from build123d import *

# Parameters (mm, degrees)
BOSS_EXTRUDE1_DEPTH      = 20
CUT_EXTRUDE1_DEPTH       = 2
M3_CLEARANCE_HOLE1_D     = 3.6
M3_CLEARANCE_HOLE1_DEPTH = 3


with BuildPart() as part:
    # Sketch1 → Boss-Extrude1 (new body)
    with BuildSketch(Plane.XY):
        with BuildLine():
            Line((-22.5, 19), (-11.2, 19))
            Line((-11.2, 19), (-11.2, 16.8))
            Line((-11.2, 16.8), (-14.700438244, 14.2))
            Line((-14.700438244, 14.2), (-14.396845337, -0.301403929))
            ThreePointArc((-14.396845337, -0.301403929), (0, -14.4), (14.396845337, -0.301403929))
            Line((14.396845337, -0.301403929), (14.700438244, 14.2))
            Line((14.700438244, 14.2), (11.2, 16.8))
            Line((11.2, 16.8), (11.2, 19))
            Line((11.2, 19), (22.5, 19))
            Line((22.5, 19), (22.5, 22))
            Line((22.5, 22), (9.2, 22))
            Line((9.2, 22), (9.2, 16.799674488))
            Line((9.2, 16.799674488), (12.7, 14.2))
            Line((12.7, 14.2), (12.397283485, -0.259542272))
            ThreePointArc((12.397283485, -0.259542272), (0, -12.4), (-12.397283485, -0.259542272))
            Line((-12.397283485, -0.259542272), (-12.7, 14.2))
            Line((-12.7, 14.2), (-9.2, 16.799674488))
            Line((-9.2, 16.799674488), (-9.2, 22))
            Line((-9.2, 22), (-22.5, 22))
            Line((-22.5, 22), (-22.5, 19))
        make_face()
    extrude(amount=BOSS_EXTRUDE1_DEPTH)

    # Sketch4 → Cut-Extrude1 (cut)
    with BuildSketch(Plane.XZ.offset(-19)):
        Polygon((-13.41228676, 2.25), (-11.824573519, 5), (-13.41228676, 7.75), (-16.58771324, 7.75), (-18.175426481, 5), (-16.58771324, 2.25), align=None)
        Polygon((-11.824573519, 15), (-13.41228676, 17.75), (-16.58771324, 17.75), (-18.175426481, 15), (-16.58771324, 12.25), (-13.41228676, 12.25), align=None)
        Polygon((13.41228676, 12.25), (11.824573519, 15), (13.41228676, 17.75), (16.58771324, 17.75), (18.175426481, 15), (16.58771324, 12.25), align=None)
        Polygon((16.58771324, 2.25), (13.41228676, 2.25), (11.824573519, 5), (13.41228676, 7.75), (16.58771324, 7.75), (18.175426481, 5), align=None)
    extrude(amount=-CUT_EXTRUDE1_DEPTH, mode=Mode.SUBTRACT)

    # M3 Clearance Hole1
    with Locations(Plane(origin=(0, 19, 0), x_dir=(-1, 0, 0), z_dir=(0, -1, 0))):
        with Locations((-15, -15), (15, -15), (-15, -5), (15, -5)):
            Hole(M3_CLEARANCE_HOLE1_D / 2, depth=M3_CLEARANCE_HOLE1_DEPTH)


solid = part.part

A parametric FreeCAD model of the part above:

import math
import FreeCAD as App
import Part
import Sketcher
from FreeCAD import Vector
Q = App.Units.Quantity

doc = App.newDocument("Part")
body = doc.addObject("PartDesign::Body", "Body")

# Sketch on XY plane
sketch1 = doc.addObject("Sketcher::SketchObject", "Sketch")
body.addObject(sketch1)
sketch1.AttachmentSupport = (doc.XY_Plane, [""])
sketch1.MapMode = "FlatFace"
sketch1.addGeometry([
    Part.LineSegment(Vector(-22.5, 19, 0), Vector(-11.2, 19, 0)),  # 0
    Part.LineSegment(Vector(-11.2, 19, 0), Vector(-11.2, 16.8, 0)),  # 1
    Part.LineSegment(Vector(-11.2, 16.8, 0), Vector(-14.700438, 14.2, 0)),  # 2
    Part.LineSegment(Vector(-14.700438, 14.2, 0), Vector(-14.396845, -0.301404, 0)),  # 3
    Part.ArcOfCircle(Part.Circle(Vector(0, 0, 0), Vector(0, 0, 1), 14.4), math.radians(-178.800664), math.radians(-1.199336)),  # 4
    Part.LineSegment(Vector(14.396845, -0.301404, 0), Vector(14.700438, 14.2, 0)),  # 5
    Part.LineSegment(Vector(14.700438, 14.2, 0), Vector(11.2, 16.8, 0)),  # 6
    Part.LineSegment(Vector(11.2, 16.8, 0), Vector(11.2, 19, 0)),  # 7
    Part.LineSegment(Vector(11.2, 19, 0), Vector(22.5, 19, 0)),  # 8
    Part.LineSegment(Vector(22.5, 19, 0), Vector(22.5, 22, 0)),  # 9
    Part.LineSegment(Vector(22.5, 22, 0), Vector(9.2, 22, 0)),  # 10
    Part.LineSegment(Vector(9.2, 22, 0), Vector(9.2, 16.799674, 0)),  # 11
    Part.LineSegment(Vector(9.2, 16.799674, 0), Vector(12.7, 14.2, 0)),  # 12
    Part.LineSegment(Vector(12.7, 14.2, 0), Vector(12.397283, -0.259542, 0)),  # 13
    Part.ArcOfCircle(Part.Circle(Vector(0, 0, 0), Vector(0, 0, 1), 12.4), math.radians(-178.800664), math.radians(-1.199336)),  # 14
    Part.LineSegment(Vector(-12.397283, -0.259542, 0), Vector(-12.7, 14.2, 0)),  # 15
    Part.LineSegment(Vector(-12.7, 14.2, 0), Vector(-9.2, 16.799674, 0)),  # 16
    Part.LineSegment(Vector(-9.2, 16.799674, 0), Vector(-9.2, 22, 0)),  # 17
    Part.LineSegment(Vector(-9.2, 22, 0), Vector(-22.5, 22, 0)),  # 18
    Part.LineSegment(Vector(-22.5, 22, 0), Vector(-22.5, 19, 0)),  # 19
], False)
sketch1.addConstraint([
    Sketcher.Constraint("Coincident", 0, 2, 1, 1),
    Sketcher.Constraint("Coincident", 1, 2, 2, 1),
    Sketcher.Constraint("Coincident", 2, 2, 3, 1),
    Sketcher.Constraint("Tangent", 3, 2, 4, 1),
    Sketcher.Constraint("Tangent", 4, 2, 5, 1),
    Sketcher.Constraint("Coincident", 5, 2, 6, 1),
    Sketcher.Constraint("Coincident", 6, 2, 7, 1),
    Sketcher.Constraint("Coincident", 7, 2, 8, 1),
    Sketcher.Constraint("Coincident", 8, 2, 9, 1),
    Sketcher.Constraint("Coincident", 9, 2, 10, 1),
    Sketcher.Constraint("Coincident", 10, 2, 11, 1),
    Sketcher.Constraint("Coincident", 11, 2, 12, 1),
    Sketcher.Constraint("Coincident", 12, 2, 13, 1),
    Sketcher.Constraint("Tangent", 13, 2, 14, 2),
    Sketcher.Constraint("Tangent", 14, 1, 15, 1),
    Sketcher.Constraint("Coincident", 15, 2, 16, 1),
    Sketcher.Constraint("Coincident", 16, 2, 17, 1),
    Sketcher.Constraint("Coincident", 17, 2, 18, 1),
    Sketcher.Constraint("Coincident", 18, 2, 19, 1),
    Sketcher.Constraint("Coincident", 19, 2, 0, 1),
    Sketcher.Constraint("Horizontal", 0),
    Sketcher.Constraint("Vertical", 1),
    Sketcher.Constraint("Vertical", 7),
    Sketcher.Constraint("Horizontal", 8),
    Sketcher.Constraint("Vertical", 9),
    Sketcher.Constraint("Horizontal", 10),
    Sketcher.Constraint("Vertical", 11),
    Sketcher.Constraint("Vertical", 17),
    Sketcher.Constraint("Horizontal", 18),
    Sketcher.Constraint("Vertical", 19),
    Sketcher.Constraint("Coincident", 4, 3, -1, 1),
    Sketcher.Constraint("Coincident", 14, 3, -1, 1),
    Sketcher.Constraint("Symmetric", 2, 2, 5, 2, -2),
    Sketcher.Constraint("Symmetric", 1, 2, 6, 2, -2),
    Sketcher.Constraint("Symmetric", 12, 2, 15, 2, -2),
    Sketcher.Constraint("Symmetric", 11, 2, 16, 2, -2),
    Sketcher.Constraint("Symmetric", 9, 2, 18, 2, -2),
    Sketcher.Constraint("Parallel", 6, 12),
    Sketcher.Constraint("Parallel", 5, 13),
    Sketcher.Constraint("Horizontal", 0, 2, 7, 2),
    Sketcher.Constraint("Horizontal", 5, 2, 12, 2),
    Sketcher.Constraint("Radius", 4, 14.4),
    Sketcher.Constraint("Radius", 14, 12.4),
    Sketcher.Constraint("DistanceY", 9, 1, 9, 2, 3.0),
    Sketcher.Constraint("DistanceX", 0, 1, 0, 2, 11.3),
    Sketcher.Constraint("DistanceX", 10, 2, 10, 1, 13.3),
    Sketcher.Constraint("DistanceY", 1, 2, 1, 1, 2.2),
    Sketcher.Constraint("DistanceY", -1, 1, 0, 2, 19.0),
    Sketcher.Constraint("DistanceX", 0, 2, -1, 1, 11.2),
    Sketcher.Constraint("DistanceY", -1, 1, 2, 2, 14.2),
    Sketcher.Constraint("DistanceX", -1, 1, 12, 2, 12.7),
])
pad1 = doc.addObject("PartDesign::Pad", "Pad")
body.addObject(pad1)
pad1.Profile = sketch1
pad1.Length = 20

# Sketch on XZ plane
sketch2 = doc.addObject("Sketcher::SketchObject", "Sketch001")
body.addObject(sketch2)
sketch2.AttachmentSupport = (doc.XZ_Plane, [""])
sketch2.MapMode = "FlatFace"
sketch2.AttachmentOffset = App.Placement(Vector(0, 0, -19), App.Rotation())
sketch2.addGeometry([
    Part.LineSegment(Vector(-13.412287, 2.25, 0), Vector(-11.824574, 5, 0)),  # 0
    Part.LineSegment(Vector(-11.824574, 5, 0), Vector(-13.412287, 7.75, 0)),  # 1
    Part.LineSegment(Vector(-13.412287, 7.75, 0), Vector(-16.587713, 7.75, 0)),  # 2
    Part.LineSegment(Vector(-16.587713, 7.75, 0), Vector(-18.175426, 5, 0)),  # 3
    Part.LineSegment(Vector(-18.175426, 5, 0), Vector(-16.587713, 2.25, 0)),  # 4
    Part.LineSegment(Vector(-16.587713, 2.25, 0), Vector(-13.412287, 2.25, 0)),  # 5
    Part.LineSegment(Vector(-11.824574, 15, 0), Vector(-13.412287, 17.75, 0)),  # 6
    Part.LineSegment(Vector(-13.412287, 17.75, 0), Vector(-16.587713, 17.75, 0)),  # 7
    Part.LineSegment(Vector(-16.587713, 17.75, 0), Vector(-18.175426, 15, 0)),  # 8
    Part.LineSegment(Vector(-18.175426, 15, 0), Vector(-16.587713, 12.25, 0)),  # 9
    Part.LineSegment(Vector(-16.587713, 12.25, 0), Vector(-13.412287, 12.25, 0)),  # 10
    Part.LineSegment(Vector(-13.412287, 12.25, 0), Vector(-11.824574, 15, 0)),  # 11
    Part.LineSegment(Vector(11.824574, 15, 0), Vector(13.412287, 12.25, 0)),  # 12
    Part.LineSegment(Vector(13.412287, 12.25, 0), Vector(16.587713, 12.25, 0)),  # 13
    Part.LineSegment(Vector(16.587713, 12.25, 0), Vector(18.175426, 15, 0)),  # 14
    Part.LineSegment(Vector(18.175426, 15, 0), Vector(16.587713, 17.75, 0)),  # 15
    Part.LineSegment(Vector(16.587713, 17.75, 0), Vector(13.412287, 17.75, 0)),  # 16
    Part.LineSegment(Vector(13.412287, 17.75, 0), Vector(11.824574, 15, 0)),  # 17
    Part.LineSegment(Vector(13.412287, 2.25, 0), Vector(16.587713, 2.25, 0)),  # 18
    Part.LineSegment(Vector(16.587713, 2.25, 0), Vector(18.175426, 5, 0)),  # 19
    Part.LineSegment(Vector(18.175426, 5, 0), Vector(16.587713, 7.75, 0)),  # 20
    Part.LineSegment(Vector(16.587713, 7.75, 0), Vector(13.412287, 7.75, 0)),  # 21
    Part.LineSegment(Vector(13.412287, 7.75, 0), Vector(11.824574, 5, 0)),  # 22
    Part.LineSegment(Vector(11.824574, 5, 0), Vector(13.412287, 2.25, 0)),  # 23
], False)
sketch2.addConstraint([
    Sketcher.Constraint("Coincident", 0, 2, 1, 1),
    Sketcher.Constraint("Coincident", 1, 2, 2, 1),
    Sketcher.Constraint("Coincident", 2, 2, 3, 1),
    Sketcher.Constraint("Coincident", 3, 2, 4, 1),
    Sketcher.Constraint("Coincident", 4, 2, 5, 1),
    Sketcher.Constraint("Coincident", 5, 2, 0, 1),
    Sketcher.Constraint("Coincident", 6, 2, 7, 1),
    Sketcher.Constraint("Coincident", 7, 2, 8, 1),
    Sketcher.Constraint("Coincident", 8, 2, 9, 1),
    Sketcher.Constraint("Coincident", 9, 2, 10, 1),
    Sketcher.Constraint("Coincident", 10, 2, 11, 1),
    Sketcher.Constraint("Coincident", 11, 2, 6, 1),
    Sketcher.Constraint("Coincident", 12, 2, 13, 1),
    Sketcher.Constraint("Coincident", 13, 2, 14, 1),
    Sketcher.Constraint("Coincident", 14, 2, 15, 1),
    Sketcher.Constraint("Coincident", 15, 2, 16, 1),
    Sketcher.Constraint("Coincident", 16, 2, 17, 1),
    Sketcher.Constraint("Coincident", 17, 2, 12, 1),
    Sketcher.Constraint("Coincident", 18, 2, 19, 1),
    Sketcher.Constraint("Coincident", 19, 2, 20, 1),
    Sketcher.Constraint("Coincident", 20, 2, 21, 1),
    Sketcher.Constraint("Coincident", 21, 2, 22, 1),
    Sketcher.Constraint("Coincident", 22, 2, 23, 1),
    Sketcher.Constraint("Coincident", 23, 2, 18, 1),
    Sketcher.Constraint("Horizontal", 2),
    Sketcher.Constraint("Horizontal", 5),
    Sketcher.Constraint("Horizontal", 7),
    Sketcher.Constraint("Horizontal", 10),
    Sketcher.Constraint("Horizontal", 13),
    Sketcher.Constraint("Horizontal", 16),
    Sketcher.Constraint("Horizontal", 18),
    Sketcher.Constraint("Horizontal", 21),
    Sketcher.Constraint("Symmetric", 10, 2, 12, 2, -2),
    Sketcher.Constraint("Symmetric", 8, 2, 14, 2, -2),
    Sketcher.Constraint("Symmetric", 7, 2, 15, 2, -2),
    Sketcher.Constraint("Symmetric", 11, 2, 17, 2, -2),
    Sketcher.Constraint("Symmetric", 4, 2, 18, 2, -2),
    Sketcher.Constraint("Symmetric", 3, 2, 19, 2, -2),
    Sketcher.Constraint("Symmetric", 2, 2, 20, 2, -2),
    Sketcher.Constraint("Symmetric", 0, 2, 22, 2, -2),
    Sketcher.Constraint("Parallel", 0, 3),
    Sketcher.Constraint("Parallel", 1, 4),
    Sketcher.Constraint("Parallel", 4, 6),
    Sketcher.Constraint("Parallel", 3, 8),
    Sketcher.Constraint("Parallel", 6, 9),
    Sketcher.Constraint("Parallel", 8, 11),
    Sketcher.Constraint("Parallel", 9, 12),
    Sketcher.Constraint("Parallel", 11, 14),
    Sketcher.Constraint("Parallel", 14, 17),
    Sketcher.Constraint("Parallel", 19, 22),
    Sketcher.Constraint("Parallel", 20, 23),
    Sketcher.Constraint("Horizontal", 0, 2, 3, 2),
    Sketcher.Constraint("Horizontal", 8, 2, 11, 2),
    Sketcher.Constraint("Vertical", 2, 2, 4, 2),
    Sketcher.Constraint("Vertical", 5, 2, 6, 2),
    Sketcher.Constraint("Vertical", 4, 2, 7, 2),
    Sketcher.Constraint("Vertical", 3, 2, 8, 2),
    Sketcher.Constraint("Vertical", 7, 2, 9, 2),
    Sketcher.Constraint("Angle", 0, Q("60 deg")),
    Sketcher.Constraint("DistanceY", -1, 1, 0, 2, 5.0),
    Sketcher.Constraint("DistanceY", -1, 1, 8, 2, 15.0),
    Sketcher.Constraint("DistanceX", 10, 2, 13, 2, 30.0),
    Sketcher.Constraint("DistanceY", 4, 2, 2, 2, 5.5),
    Sketcher.Constraint("DistanceX", 2, 2, 2, 1, 3.175426),
])
pocket1 = doc.addObject("PartDesign::Pocket", "Pocket")
body.addObject(pocket1)
pocket1.Profile = sketch2
pocket1.Length = 2

# Sketch on XZ plane
sketch3 = doc.addObject("Sketcher::SketchObject", "Sketch002")
body.addObject(sketch3)
sketch3.AttachmentSupport = (doc.XZ_Plane, [""])
sketch3.MapMode = "FlatFace"
sketch3.AttachmentOffset = App.Placement(Vector(0, 0, -19), App.Rotation())
sketch3.addGeometry([
    Part.Circle(Vector(15, 15, 0), Vector(0, 0, 1), 1.8),
    Part.Circle(Vector(-15, 15, 0), Vector(0, 0, 1), 1.8),
    Part.Circle(Vector(15, 5, 0), Vector(0, 0, 1), 1.8),
    Part.Circle(Vector(-15, 5, 0), Vector(0, 0, 1), 1.8),
], False)
sketch3.addConstraint([
    Sketcher.Constraint("Equal", 0, 1),
    Sketcher.Constraint("Equal", 1, 2),
    Sketcher.Constraint("Equal", 2, 3),
    Sketcher.Constraint("Symmetric", 0, 3, 1, 3, -2),
    Sketcher.Constraint("Symmetric", 2, 3, 3, 3, -2),
    Sketcher.Constraint("Vertical", 0, 3, 2, 3),
    Sketcher.Constraint("Diameter", 0, 3.6),
    Sketcher.Constraint("DistanceX", -1, 1, 0, 3, 15.0),
    Sketcher.Constraint("DistanceY", -1, 1, 0, 3, 15.0),
    Sketcher.Constraint("DistanceY", -1, 1, 2, 3, 5.0),
])
doc.recompute()
hole = doc.addObject("PartDesign::Hole", "Hole")
body.addObject(hole)
hole.Profile = sketch3
hole.ThreadType = "None"
hole.Diameter = 3.6
hole.DepthType = "Dimension"
hole.Depth = 3
hole.DrillPoint = "Flat"

doc.recompute()
